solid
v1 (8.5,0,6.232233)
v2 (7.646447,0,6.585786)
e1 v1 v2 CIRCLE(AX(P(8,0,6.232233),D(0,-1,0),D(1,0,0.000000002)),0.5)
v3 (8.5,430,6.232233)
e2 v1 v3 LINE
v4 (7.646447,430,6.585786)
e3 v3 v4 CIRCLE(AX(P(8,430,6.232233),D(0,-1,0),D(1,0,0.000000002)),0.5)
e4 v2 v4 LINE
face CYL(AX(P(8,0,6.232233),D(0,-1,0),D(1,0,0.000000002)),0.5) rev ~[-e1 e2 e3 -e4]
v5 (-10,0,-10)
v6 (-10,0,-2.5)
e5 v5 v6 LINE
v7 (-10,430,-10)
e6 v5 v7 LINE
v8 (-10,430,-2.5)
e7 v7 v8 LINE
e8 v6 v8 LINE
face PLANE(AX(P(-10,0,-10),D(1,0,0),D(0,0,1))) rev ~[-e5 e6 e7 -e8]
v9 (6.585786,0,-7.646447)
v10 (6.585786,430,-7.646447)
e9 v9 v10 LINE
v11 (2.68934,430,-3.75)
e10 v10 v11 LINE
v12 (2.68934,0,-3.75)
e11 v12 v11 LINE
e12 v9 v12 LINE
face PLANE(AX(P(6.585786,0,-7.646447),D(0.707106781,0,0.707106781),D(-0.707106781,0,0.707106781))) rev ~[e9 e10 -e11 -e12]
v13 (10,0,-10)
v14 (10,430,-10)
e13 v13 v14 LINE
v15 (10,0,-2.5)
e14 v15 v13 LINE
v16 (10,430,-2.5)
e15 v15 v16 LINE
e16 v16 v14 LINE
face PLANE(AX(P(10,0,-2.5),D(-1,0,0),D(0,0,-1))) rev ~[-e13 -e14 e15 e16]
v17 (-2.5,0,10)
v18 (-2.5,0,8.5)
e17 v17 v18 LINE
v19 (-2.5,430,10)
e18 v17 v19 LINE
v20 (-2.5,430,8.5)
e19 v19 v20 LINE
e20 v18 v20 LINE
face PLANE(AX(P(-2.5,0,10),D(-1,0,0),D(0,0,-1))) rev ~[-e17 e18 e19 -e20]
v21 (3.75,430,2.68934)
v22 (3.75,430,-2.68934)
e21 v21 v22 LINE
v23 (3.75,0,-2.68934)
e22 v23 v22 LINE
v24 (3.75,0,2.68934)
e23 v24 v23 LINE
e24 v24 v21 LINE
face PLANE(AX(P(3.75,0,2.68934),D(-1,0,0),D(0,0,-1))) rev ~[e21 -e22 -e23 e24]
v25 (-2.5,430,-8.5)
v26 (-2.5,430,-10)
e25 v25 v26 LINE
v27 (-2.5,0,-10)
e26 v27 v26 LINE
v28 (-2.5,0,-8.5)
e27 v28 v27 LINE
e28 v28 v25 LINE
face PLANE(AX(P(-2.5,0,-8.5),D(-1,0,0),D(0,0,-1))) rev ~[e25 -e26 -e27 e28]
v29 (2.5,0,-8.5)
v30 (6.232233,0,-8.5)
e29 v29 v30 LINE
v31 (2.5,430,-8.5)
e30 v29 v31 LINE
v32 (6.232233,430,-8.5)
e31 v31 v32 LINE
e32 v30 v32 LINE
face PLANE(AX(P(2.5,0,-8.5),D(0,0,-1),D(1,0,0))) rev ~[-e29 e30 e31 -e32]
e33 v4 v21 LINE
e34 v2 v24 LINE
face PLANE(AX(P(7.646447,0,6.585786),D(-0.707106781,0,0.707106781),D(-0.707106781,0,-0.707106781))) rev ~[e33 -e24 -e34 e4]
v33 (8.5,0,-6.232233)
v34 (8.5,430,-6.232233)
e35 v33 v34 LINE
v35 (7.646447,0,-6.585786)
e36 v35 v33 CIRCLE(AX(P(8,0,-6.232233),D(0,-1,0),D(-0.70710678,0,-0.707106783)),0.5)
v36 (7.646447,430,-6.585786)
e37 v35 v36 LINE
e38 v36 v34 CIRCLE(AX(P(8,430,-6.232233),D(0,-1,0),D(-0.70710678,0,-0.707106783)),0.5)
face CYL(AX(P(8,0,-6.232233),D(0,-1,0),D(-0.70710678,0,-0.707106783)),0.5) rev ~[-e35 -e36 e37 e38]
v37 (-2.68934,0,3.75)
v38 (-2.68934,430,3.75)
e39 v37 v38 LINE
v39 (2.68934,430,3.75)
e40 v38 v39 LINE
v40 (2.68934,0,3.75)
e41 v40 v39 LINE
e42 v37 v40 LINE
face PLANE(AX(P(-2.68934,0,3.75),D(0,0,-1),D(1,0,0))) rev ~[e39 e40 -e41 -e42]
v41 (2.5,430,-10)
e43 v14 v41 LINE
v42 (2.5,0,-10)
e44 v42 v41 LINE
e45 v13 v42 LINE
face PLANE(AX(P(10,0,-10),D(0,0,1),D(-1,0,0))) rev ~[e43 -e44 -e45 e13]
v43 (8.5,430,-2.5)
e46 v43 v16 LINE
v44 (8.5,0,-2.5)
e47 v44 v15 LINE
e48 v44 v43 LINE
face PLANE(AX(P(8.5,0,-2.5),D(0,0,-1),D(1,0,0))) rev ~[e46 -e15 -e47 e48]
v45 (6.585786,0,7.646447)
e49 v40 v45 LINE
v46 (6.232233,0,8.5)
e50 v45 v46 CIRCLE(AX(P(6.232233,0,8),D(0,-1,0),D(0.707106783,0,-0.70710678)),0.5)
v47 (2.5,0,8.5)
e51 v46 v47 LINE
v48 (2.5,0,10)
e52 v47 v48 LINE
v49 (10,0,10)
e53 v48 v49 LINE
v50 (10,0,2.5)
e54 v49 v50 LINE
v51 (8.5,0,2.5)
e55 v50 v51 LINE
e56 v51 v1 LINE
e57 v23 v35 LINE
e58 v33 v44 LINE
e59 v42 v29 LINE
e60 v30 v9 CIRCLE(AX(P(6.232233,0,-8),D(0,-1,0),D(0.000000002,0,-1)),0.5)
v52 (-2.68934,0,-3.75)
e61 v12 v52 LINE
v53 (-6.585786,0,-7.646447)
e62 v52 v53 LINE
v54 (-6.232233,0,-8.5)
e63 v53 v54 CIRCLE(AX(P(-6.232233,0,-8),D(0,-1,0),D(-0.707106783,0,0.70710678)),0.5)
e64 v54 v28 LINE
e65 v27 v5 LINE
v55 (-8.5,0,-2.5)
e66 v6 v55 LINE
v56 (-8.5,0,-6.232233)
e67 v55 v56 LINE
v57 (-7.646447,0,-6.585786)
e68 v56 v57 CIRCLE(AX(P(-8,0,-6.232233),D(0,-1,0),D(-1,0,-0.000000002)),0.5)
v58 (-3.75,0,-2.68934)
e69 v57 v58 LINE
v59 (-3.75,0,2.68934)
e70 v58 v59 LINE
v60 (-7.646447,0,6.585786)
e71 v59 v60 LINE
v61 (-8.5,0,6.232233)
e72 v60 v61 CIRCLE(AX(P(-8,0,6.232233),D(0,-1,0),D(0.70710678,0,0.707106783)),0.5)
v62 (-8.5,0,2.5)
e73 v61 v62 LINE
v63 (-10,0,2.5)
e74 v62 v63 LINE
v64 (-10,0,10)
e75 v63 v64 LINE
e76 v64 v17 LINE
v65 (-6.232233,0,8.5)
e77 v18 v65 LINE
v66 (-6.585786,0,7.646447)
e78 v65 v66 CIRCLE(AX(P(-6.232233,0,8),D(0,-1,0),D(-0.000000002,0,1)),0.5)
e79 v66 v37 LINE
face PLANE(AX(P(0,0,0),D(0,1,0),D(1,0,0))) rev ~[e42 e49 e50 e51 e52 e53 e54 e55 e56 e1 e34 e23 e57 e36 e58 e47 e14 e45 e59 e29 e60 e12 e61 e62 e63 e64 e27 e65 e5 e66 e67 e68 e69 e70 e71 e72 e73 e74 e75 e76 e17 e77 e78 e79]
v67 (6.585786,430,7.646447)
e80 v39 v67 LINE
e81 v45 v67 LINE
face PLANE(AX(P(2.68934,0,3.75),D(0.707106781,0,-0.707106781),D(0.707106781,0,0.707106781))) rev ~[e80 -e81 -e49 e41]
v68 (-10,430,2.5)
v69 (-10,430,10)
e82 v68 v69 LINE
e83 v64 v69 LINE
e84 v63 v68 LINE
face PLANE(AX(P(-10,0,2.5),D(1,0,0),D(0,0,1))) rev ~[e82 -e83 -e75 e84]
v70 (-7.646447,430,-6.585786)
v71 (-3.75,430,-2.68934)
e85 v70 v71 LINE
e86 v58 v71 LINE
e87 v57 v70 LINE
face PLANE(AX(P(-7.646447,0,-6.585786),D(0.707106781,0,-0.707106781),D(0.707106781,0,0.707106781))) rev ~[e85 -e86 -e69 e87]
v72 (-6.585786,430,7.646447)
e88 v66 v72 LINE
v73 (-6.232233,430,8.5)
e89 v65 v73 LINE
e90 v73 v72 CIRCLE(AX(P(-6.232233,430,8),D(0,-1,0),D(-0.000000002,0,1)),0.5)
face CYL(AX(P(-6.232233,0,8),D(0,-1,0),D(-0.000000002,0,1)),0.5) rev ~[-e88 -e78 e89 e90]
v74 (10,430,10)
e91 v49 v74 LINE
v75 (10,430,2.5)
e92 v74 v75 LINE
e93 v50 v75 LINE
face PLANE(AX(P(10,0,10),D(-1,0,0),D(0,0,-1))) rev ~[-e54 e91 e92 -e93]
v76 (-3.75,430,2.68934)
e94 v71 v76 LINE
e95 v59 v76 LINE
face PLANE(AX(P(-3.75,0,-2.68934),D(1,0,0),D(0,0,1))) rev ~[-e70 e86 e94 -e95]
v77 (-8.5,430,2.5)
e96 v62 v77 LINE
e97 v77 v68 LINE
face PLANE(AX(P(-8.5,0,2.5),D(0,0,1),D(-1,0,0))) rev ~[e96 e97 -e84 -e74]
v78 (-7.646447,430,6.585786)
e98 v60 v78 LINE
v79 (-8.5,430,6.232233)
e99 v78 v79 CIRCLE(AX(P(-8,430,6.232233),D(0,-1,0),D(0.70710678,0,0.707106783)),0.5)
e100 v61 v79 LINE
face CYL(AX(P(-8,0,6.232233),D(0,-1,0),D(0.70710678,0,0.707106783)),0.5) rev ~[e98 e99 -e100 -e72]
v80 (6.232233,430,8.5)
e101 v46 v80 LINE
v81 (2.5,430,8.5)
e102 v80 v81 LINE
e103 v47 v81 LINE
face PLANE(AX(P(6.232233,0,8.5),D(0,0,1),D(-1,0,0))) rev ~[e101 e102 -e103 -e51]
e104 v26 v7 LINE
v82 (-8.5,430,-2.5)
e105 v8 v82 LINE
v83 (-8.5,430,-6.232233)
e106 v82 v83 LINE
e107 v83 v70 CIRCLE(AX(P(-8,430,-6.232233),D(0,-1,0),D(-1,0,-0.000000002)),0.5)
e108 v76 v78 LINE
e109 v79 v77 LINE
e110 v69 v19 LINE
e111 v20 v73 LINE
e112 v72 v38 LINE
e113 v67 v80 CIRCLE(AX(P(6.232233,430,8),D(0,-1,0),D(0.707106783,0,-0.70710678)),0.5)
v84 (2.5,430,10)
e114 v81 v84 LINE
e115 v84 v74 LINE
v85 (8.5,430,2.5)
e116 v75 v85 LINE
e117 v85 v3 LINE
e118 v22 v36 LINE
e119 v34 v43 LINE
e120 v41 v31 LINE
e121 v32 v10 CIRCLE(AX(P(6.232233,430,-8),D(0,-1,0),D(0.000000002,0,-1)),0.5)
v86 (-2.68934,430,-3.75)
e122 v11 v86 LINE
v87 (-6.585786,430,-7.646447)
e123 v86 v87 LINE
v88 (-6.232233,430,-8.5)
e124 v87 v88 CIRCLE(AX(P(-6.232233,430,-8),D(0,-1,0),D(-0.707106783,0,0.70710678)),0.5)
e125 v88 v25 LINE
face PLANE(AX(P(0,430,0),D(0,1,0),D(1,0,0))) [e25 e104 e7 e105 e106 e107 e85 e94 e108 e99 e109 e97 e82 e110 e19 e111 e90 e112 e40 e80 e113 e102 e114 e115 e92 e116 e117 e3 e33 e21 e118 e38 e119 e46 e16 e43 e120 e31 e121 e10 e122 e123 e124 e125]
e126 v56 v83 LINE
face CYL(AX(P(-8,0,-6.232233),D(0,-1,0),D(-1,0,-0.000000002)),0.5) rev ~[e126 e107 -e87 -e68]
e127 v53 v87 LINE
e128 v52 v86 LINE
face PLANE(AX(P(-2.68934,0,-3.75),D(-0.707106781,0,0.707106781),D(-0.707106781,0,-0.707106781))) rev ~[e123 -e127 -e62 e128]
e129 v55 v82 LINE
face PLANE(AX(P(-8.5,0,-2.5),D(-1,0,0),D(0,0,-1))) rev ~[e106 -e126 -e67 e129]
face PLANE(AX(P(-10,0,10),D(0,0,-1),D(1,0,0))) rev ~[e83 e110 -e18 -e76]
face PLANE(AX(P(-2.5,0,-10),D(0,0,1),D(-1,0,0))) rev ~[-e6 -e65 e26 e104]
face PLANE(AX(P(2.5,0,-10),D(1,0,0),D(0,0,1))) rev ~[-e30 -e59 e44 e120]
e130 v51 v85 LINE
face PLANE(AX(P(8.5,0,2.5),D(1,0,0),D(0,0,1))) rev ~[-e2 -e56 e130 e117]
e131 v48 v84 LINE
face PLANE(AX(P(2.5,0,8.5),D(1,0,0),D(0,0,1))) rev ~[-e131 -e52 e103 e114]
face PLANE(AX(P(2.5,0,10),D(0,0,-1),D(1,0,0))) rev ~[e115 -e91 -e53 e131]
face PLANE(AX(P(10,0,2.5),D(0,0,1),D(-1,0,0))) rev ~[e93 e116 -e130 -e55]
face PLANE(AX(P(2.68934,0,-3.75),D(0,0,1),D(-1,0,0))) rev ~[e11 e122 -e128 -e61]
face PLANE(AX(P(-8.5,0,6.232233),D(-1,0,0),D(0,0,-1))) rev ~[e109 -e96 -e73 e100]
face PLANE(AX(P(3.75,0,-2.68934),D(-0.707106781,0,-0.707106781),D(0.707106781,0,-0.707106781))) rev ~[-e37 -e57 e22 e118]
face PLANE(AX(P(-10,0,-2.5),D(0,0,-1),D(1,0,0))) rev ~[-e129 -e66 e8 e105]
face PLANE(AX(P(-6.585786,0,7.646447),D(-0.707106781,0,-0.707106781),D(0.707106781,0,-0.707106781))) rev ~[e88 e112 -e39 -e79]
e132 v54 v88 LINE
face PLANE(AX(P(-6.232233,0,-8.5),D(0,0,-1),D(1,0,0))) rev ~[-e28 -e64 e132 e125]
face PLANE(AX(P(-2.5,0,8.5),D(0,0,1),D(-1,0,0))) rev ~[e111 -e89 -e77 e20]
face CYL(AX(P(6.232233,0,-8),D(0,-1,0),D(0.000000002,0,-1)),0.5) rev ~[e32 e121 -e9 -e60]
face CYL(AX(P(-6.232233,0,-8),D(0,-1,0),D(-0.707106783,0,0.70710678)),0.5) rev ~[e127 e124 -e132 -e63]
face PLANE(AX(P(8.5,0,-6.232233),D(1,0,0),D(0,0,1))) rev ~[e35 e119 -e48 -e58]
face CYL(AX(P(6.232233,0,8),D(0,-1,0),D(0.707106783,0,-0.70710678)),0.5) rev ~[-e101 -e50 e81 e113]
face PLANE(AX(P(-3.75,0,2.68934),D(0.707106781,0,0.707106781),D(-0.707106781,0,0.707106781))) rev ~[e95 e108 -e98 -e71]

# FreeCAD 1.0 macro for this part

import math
import FreeCAD as App
import Part
import Sketcher

V = App.Vector

doc = App.newDocument("Part")
body = doc.addObject("PartDesign::Body", "Body")

sketch1 = body.newObject("Sketcher::SketchObject", "Sketch")
sketch1.AttachmentSupport = (doc.getObject("XZ_Plane"), [""])
sketch1.MapMode = "FlatFace"
sketch1.addGeometry(Part.LineSegment(V(-10, 2.5, 0), V(-10, 10, 0)), False)
sketch1.addGeometry(Part.LineSegment(V(-10, 10, 0), V(-2.5, 10, 0)), False)
sketch1.addGeometry(Part.LineSegment(V(-2.5, 10, 0), V(-2.5, 8.5, 0)), False)
sketch1.addGeometry(Part.LineSegment(V(-2.5, 8.5, 0), V(-6.2, 8.5, 0)), False)
sketch1.addGeometry(Part.ArcOfCircle(Part.Circle(V(-6.2, 8, 0), V(0, 0, 1), 0.5), math.radians(90), math.radians(225)), False)
sketch1.addGeometry(Part.LineSegment(V(-6.6, 7.6, 0), V(-2.7, 3.8, 0)), False)
sketch1.addGeometry(Part.LineSegment(V(-2.7, 3.8, 0), V(2.7, 3.8, 0)), False)
sketch1.addGeometry(Part.LineSegment(V(2.7, 3.8, 0), V(6.6, 7.6, 0)), False)
sketch1.addGeometry(Part.ArcOfCircle(Part.Circle(V(6.2, 8, 0), V(0, 0, 1), 0.5), math.radians(-45), math.radians(90)), False)
sketch1.addGeometry(Part.LineSegment(V(6.2, 8.5, 0), V(2.5, 8.5, 0)), False)
sketch1.addGeometry(Part.LineSegment(V(2.5, 8.5, 0), V(2.5, 10, 0)), False)
sketch1.addGeometry(Part.LineSegment(V(2.5, 10, 0), V(10, 10, 0)), False)
sketch1.addGeometry(Part.LineSegment(V(10, 10, 0), V(10, 2.5, 0)), False)
sketch1.addGeometry(Part.LineSegment(V(10, 2.5, 0), V(8.5, 2.5, 0)), False)
sketch1.addGeometry(Part.LineSegment(V(8.5, 2.5, 0), V(8.5, 6.2, 0)), False)
sketch1.addGeometry(Part.ArcOfCircle(Part.Circle(V(8, 6.2, 0), V(0, 0, 1), 0.5), math.radians(0), math.radians(135)), False)
sketch1.addGeometry(Part.LineSegment(V(7.6, 6.6, 0), V(3.8, 2.7, 0)), False)
sketch1.addGeometry(Part.LineSegment(V(3.8, 2.7, 0), V(3.8, -2.7, 0)), False)
sketch1.addGeometry(Part.LineSegment(V(3.8, -2.7, 0), V(7.6, -6.6, 0)), False)
sketch1.addGeometry(Part.ArcOfCircle(Part.Circle(V(8, -6.2, 0), V(0, 0, 1), 0.5), math.radians(-135), math.radians(0)), False)
sketch1.addGeometry(Part.LineSegment(V(8.5, -6.2, 0), V(8.5, -2.5, 0)), False)
sketch1.addGeometry(Part.LineSegment(V(8.5, -2.5, 0), V(10, -2.5, 0)), False)
sketch1.addGeometry(Part.LineSegment(V(10, -2.5, 0), V(10, -10, 0)), False)
sketch1.addGeometry(Part.LineSegment(V(10, -10, 0), V(2.5, -10, 0)), False)
sketch1.addGeometry(Part.LineSegment(V(2.5, -10, 0), V(2.5, -8.5, 0)), False)
sketch1.addGeometry(Part.LineSegment(V(2.5, -8.5, 0), V(6.2, -8.5, 0)), False)
sketch1.addGeometry(Part.ArcOfCircle(Part.Circle(V(6.2, -8, 0), V(0, 0, 1), 0.5), math.radians(-90), math.radians(45)), False)
sketch1.addGeometry(Part.LineSegment(V(6.6, -7.6, 0), V(2.7, -3.8, 0)), False)
sketch1.addGeometry(Part.LineSegment(V(2.7, -3.8, 0), V(-2.7, -3.8, 0)), False)
sketch1.addGeometry(Part.LineSegment(V(-2.7, -3.8, 0), V(-6.6, -7.6, 0)), False)
sketch1.addGeometry(Part.ArcOfCircle(Part.Circle(V(-6.2, -8, 0), V(0, 0, 1), 0.5), math.radians(135), math.radians(270)), False)
sketch1.addGeometry(Part.LineSegment(V(-6.2, -8.5, 0), V(-2.5, -8.5, 0)), False)
sketch1.addGeometry(Part.LineSegment(V(-2.5, -8.5, 0), V(-2.5, -10, 0)), False)
sketch1.addGeometry(Part.LineSegment(V(-2.5, -10, 0), V(-10, -10, 0)), False)
sketch1.addGeometry(Part.LineSegment(V(-10, -10, 0), V(-10, -2.5, 0)), False)
sketch1.addGeometry(Part.LineSegment(V(-10, -2.5, 0), V(-8.5, -2.5, 0)), False)
sketch1.addGeometry(Part.LineSegment(V(-8.5, -2.5, 0), V(-8.5, -6.2, 0)), False)
sketch1.addGeometry(Part.ArcOfCircle(Part.Circle(V(-8, -6.2, 0), V(0, 0, 1), 0.5), math.radians(-180), math.radians(-45)), False)
sketch1.addGeometry(Part.LineSegment(V(-7.6, -6.6, 0), V(-3.8, -2.7, 0)), False)
sketch1.addGeometry(Part.LineSegment(V(-3.8, -2.7, 0), V(-3.8, 2.7, 0)), False)
sketch1.addGeometry(Part.LineSegment(V(-3.8, 2.7, 0), V(-7.6, 6.6, 0)), False)
sketch1.addGeometry(Part.ArcOfCircle(Part.Circle(V(-8, 6.2, 0), V(0, 0, 1), 0.5), math.radians(45), math.radians(180)), False)
sketch1.addGeometry(Part.LineSegment(V(-8.5, 6.2, 0), V(-8.5, 2.5, 0)), False)
sketch1.addGeometry(Part.LineSegment(V(-8.5, 2.5, 0), V(-10, 2.5, 0)), False)
sketch1.addConstraint(Sketcher.Constraint("Coincident", 0, 2, 1, 1))
sketch1.addConstraint(Sketcher.Constraint("Coincident", 1, 2, 2, 1))
sketch1.addConstraint(Sketcher.Constraint("Coincident", 2, 2, 3, 1))
sketch1.addConstraint(Sketcher.Constraint("Tangent", 3, 2, 4, 1))
sketch1.addConstraint(Sketcher.Constraint("Tangent", 4, 2, 5, 1))
sketch1.addConstraint(Sketcher.Constraint("Coincident", 5, 2, 6, 1))
sketch1.addConstraint(Sketcher.Constraint("Coincident", 6, 2, 7, 1))
sketch1.addConstraint(Sketcher.Constraint("Tangent", 7, 2, 8, 1))
sketch1.addConstraint(Sketcher.Constraint("Tangent", 8, 2, 9, 1))
sketch1.addConstraint(Sketcher.Constraint("Coincident", 9, 2, 10, 1))
sketch1.addConstraint(Sketcher.Constraint("Coincident", 10, 2, 11, 1))
sketch1.addConstraint(Sketcher.Constraint("Coincident", 11, 2, 12, 1))
sketch1.addConstraint(Sketcher.Constraint("Coincident", 12, 2, 13, 1))
sketch1.addConstraint(Sketcher.Constraint("Coincident", 13, 2, 14, 1))
sketch1.addConstraint(Sketcher.Constraint("Tangent", 14, 2, 15, 1))
sketch1.addConstraint(Sketcher.Constraint("Tangent", 15, 2, 16, 1))
sketch1.addConstraint(Sketcher.Constraint("Coincident", 16, 2, 17, 1))
sketch1.addConstraint(Sketcher.Constraint("Coincident", 17, 2, 18, 1))
sketch1.addConstraint(Sketcher.Constraint("Tangent", 18, 2, 19, 1))
sketch1.addConstraint(Sketcher.Constraint("Tangent", 19, 2, 20, 1))
sketch1.addConstraint(Sketcher.Constraint("Coincident", 20, 2, 21, 1))
sketch1.addConstraint(Sketcher.Constraint("Coincident", 21, 2, 22, 1))
sketch1.addConstraint(Sketcher.Constraint("Coincident", 22, 2, 23, 1))
sketch1.addConstraint(Sketcher.Constraint("Coincident", 23, 2, 24, 1))
sketch1.addConstraint(Sketcher.Constraint("Coincident", 24, 2, 25, 1))
sketch1.addConstraint(Sketcher.Constraint("Tangent", 25, 2, 26, 1))
sketch1.addConstraint(Sketcher.Constraint("Tangent", 26, 2, 27, 1))
sketch1.addConstraint(Sketcher.Constraint("Coincident", 27, 2, 28, 1))
sketch1.addConstraint(Sketcher.Constraint("Coincident", 28, 2, 29, 1))
sketch1.addConstraint(Sketcher.Constraint("Tangent", 29, 2, 30, 1))
sketch1.addConstraint(Sketcher.Constraint("Tangent", 30, 2, 31, 1))
sketch1.addConstraint(Sketcher.Constraint("Coincident", 31, 2, 32, 1))
sketch1.addConstraint(Sketcher.Constraint("Coincident", 32, 2, 33, 1))
sketch1.addConstraint(Sketcher.Constraint("Coincident", 33, 2, 34, 1))
sketch1.addConstraint(Sketcher.Constraint("Coincident", 34, 2, 35, 1))
sketch1.addConstraint(Sketcher.Constraint("Coincident", 35, 2, 36, 1))
sketch1.addConstraint(Sketcher.Constraint("Tangent", 36, 2, 37, 1))
sketch1.addConstraint(Sketcher.Constraint("Tangent", 37, 2, 38, 1))
sketch1.addConstraint(Sketcher.Constraint("Coincident", 38, 2, 39, 1))
sketch1.addConstraint(Sketcher.Constraint("Coincident", 39, 2, 40, 1))
sketch1.addConstraint(Sketcher.Constraint("Tangent", 40, 2, 41, 1))
sketch1.addConstraint(Sketcher.Constraint("Tangent", 41, 2, 42, 1))
sketch1.addConstraint(Sketcher.Constraint("Coincident", 42, 2, 43, 1))
sketch1.addConstraint(Sketcher.Constraint("Coincident", 43, 2, 0, 1))
sketch1.addConstraint(Sketcher.Constraint("Vertical", 0))
sketch1.addConstraint(Sketcher.Constraint("Horizontal", 1))
sketch1.addConstraint(Sketcher.Constraint("Vertical", 2))
sketch1.addConstraint(Sketcher.Constraint("Horizontal", 3))
sketch1.addConstraint(Sketcher.Constraint("Horizontal", 6))
sketch1.addConstraint(Sketcher.Constraint("Horizontal", 9))
sketch1.addConstraint(Sketcher.Constraint("Vertical", 10))
sketch1.addConstraint(Sketcher.Constraint("Horizontal", 11))
sketch1.addConstraint(Sketcher.Constraint("Vertical", 12))
sketch1.addConstraint(Sketcher.Constraint("Horizontal", 13))
sketch1.addConstraint(Sketcher.Constraint("Vertical", 14))
sketch1.addConstraint(Sketcher.Constraint("Vertical", 17))
sketch1.addConstraint(Sketcher.Constraint("Vertical", 20))
sketch1.addConstraint(Sketcher.Constraint("Horizontal", 21))
sketch1.addConstraint(Sketcher.Constraint("Vertical", 22))
sketch1.addConstraint(Sketcher.Constraint("Horizontal", 23))
sketch1.addConstraint(Sketcher.Constraint("Vertical", 24))
sketch1.addConstraint(Sketcher.Constraint("Horizontal", 25))
sketch1.addConstraint(Sketcher.Constraint("Horizontal", 28))
sketch1.addConstraint(Sketcher.Constraint("Horizontal", 31))
sketch1.addConstraint(Sketcher.Constraint("Vertical", 32))
sketch1.addConstraint(Sketcher.Constraint("Horizontal", 33))
sketch1.addConstraint(Sketcher.Constraint("Vertical", 34))
sketch1.addConstraint(Sketcher.Constraint("Horizontal", 35))
sketch1.addConstraint(Sketcher.Constraint("Vertical", 36))
sketch1.addConstraint(Sketcher.Constraint("Vertical", 39))
sketch1.addConstraint(Sketcher.Constraint("Vertical", 42))
sketch1.addConstraint(Sketcher.Constraint("Horizontal", 43))
sketch1.addConstraint(Sketcher.Constraint("Equal", 4, 8))
sketch1.addConstraint(Sketcher.Constraint("Equal", 8, 15))
sketch1.addConstraint(Sketcher.Constraint("Equal", 15, 19))
sketch1.addConstraint(Sketcher.Constraint("Equal", 19, 26))
sketch1.addConstraint(Sketcher.Constraint("Equal", 26, 30))
sketch1.addConstraint(Sketcher.Constraint("Equal", 30, 37))
sketch1.addConstraint(Sketcher.Constraint("Equal", 37, 41))
sketch1.addConstraint(Sketcher.Constraint("Symmetric", 4, 3, 26, 3, -1, 1))
sketch1.addConstraint(Sketcher.Constraint("Symmetric", 8, 3, 30, 3, -1, 1))
sketch1.addConstraint(Sketcher.Constraint("Symmetric", 15, 3, 37, 3, -1, 1))
sketch1.addConstraint(Sketcher.Constraint("Symmetric", 19, 3, 41, 3, -1, 1))
sketch1.addConstraint(Sketcher.Constraint("Symmetric", 0, 2, 22, 2, -1, 1))
sketch1.addConstraint(Sketcher.Constraint("Symmetric", 5, 2, 27, 2, -1, 1))
sketch1.addConstraint(Sketcher.Constraint("Symmetric", 10, 2, 32, 2, -1, 1))
sketch1.addConstraint(Sketcher.Constraint("Symmetric", 12, 2, 34, 2, -1, 1))
sketch1.addConstraint(Sketcher.Constraint("Symmetric", 16, 2, 38, 2, -1, 1))
sketch1.addConstraint(Sketcher.Constraint("Symmetric", 4, 3, 8, 3, -2))
sketch1.addConstraint(Sketcher.Constraint("Symmetric", 19, 3, 37, 3, -2))
sketch1.addConstraint(Sketcher.Constraint("Symmetric", 1, 2, 10, 2, -2))
sketch1.addConstraint(Sketcher.Constraint("Symmetric", 21, 2, 34, 2, -2))
sketch1.addConstraint(Sketcher.Constraint("Perpendicular", 5, 7))
sketch1.addConstraint(Sketcher.Constraint("Parallel", 7, 16))
sketch1.addConstraint(Sketcher.Constraint("Perpendicular", 16, 18))
sketch1.addConstraint(Sketcher.Constraint("Perpendicular", 27, 29))
sketch1.addConstraint(Sketcher.Constraint("Perpendicular", 38, 40))
sketch1.addConstraint(Sketcher.Constraint("Horizontal", 4, 2, 7, 2))
sketch1.addConstraint(Sketcher.Constraint("Horizontal", 13, 2, 42, 2))
sketch1.addConstraint(Sketcher.Constraint("Vertical", 10, 2, 23, 2))
sketch1.addConstraint(Sketcher.Constraint("Equal", 33, 0))
sketch1.addConstraint(Sketcher.Constraint("Equal", 43, 2))
sketch1.addConstraint(Sketcher.Constraint("Equal", 31, 14))
sketch1.addConstraint(Sketcher.Constraint("Equal", 28, 17))
sketch1.addConstraint(Sketcher.Constraint("Equal", 7, 16))
sketch1.addConstraint(Sketcher.Constraint("Radius", 4, 0.5))
sketch1.addConstraint(Sketcher.Constraint("DistanceX", 1, 1, 1, 2, 7.5))
sketch1.addConstraint(Sketcher.Constraint("DistanceX", 13, 2, 13, 1, 1.5))
sketch1.addConstraint(Sketcher.Constraint("DistanceY", -1, 1, 4, 3, 8.0))
sketch1.addConstraint(Sketcher.Constraint("DistanceY", -1, 1, 5, 2, 3.75))
sketch1.addConstraint(Sketcher.Constraint("DistanceX", 6, 1, 6, 2, 5.37868))
pad1 = body.newObject("PartDesign::Pad", "Pad")
pad1.Profile = sketch1
pad1.Length = 430
pad1.Reversed = True

doc.recompute()
